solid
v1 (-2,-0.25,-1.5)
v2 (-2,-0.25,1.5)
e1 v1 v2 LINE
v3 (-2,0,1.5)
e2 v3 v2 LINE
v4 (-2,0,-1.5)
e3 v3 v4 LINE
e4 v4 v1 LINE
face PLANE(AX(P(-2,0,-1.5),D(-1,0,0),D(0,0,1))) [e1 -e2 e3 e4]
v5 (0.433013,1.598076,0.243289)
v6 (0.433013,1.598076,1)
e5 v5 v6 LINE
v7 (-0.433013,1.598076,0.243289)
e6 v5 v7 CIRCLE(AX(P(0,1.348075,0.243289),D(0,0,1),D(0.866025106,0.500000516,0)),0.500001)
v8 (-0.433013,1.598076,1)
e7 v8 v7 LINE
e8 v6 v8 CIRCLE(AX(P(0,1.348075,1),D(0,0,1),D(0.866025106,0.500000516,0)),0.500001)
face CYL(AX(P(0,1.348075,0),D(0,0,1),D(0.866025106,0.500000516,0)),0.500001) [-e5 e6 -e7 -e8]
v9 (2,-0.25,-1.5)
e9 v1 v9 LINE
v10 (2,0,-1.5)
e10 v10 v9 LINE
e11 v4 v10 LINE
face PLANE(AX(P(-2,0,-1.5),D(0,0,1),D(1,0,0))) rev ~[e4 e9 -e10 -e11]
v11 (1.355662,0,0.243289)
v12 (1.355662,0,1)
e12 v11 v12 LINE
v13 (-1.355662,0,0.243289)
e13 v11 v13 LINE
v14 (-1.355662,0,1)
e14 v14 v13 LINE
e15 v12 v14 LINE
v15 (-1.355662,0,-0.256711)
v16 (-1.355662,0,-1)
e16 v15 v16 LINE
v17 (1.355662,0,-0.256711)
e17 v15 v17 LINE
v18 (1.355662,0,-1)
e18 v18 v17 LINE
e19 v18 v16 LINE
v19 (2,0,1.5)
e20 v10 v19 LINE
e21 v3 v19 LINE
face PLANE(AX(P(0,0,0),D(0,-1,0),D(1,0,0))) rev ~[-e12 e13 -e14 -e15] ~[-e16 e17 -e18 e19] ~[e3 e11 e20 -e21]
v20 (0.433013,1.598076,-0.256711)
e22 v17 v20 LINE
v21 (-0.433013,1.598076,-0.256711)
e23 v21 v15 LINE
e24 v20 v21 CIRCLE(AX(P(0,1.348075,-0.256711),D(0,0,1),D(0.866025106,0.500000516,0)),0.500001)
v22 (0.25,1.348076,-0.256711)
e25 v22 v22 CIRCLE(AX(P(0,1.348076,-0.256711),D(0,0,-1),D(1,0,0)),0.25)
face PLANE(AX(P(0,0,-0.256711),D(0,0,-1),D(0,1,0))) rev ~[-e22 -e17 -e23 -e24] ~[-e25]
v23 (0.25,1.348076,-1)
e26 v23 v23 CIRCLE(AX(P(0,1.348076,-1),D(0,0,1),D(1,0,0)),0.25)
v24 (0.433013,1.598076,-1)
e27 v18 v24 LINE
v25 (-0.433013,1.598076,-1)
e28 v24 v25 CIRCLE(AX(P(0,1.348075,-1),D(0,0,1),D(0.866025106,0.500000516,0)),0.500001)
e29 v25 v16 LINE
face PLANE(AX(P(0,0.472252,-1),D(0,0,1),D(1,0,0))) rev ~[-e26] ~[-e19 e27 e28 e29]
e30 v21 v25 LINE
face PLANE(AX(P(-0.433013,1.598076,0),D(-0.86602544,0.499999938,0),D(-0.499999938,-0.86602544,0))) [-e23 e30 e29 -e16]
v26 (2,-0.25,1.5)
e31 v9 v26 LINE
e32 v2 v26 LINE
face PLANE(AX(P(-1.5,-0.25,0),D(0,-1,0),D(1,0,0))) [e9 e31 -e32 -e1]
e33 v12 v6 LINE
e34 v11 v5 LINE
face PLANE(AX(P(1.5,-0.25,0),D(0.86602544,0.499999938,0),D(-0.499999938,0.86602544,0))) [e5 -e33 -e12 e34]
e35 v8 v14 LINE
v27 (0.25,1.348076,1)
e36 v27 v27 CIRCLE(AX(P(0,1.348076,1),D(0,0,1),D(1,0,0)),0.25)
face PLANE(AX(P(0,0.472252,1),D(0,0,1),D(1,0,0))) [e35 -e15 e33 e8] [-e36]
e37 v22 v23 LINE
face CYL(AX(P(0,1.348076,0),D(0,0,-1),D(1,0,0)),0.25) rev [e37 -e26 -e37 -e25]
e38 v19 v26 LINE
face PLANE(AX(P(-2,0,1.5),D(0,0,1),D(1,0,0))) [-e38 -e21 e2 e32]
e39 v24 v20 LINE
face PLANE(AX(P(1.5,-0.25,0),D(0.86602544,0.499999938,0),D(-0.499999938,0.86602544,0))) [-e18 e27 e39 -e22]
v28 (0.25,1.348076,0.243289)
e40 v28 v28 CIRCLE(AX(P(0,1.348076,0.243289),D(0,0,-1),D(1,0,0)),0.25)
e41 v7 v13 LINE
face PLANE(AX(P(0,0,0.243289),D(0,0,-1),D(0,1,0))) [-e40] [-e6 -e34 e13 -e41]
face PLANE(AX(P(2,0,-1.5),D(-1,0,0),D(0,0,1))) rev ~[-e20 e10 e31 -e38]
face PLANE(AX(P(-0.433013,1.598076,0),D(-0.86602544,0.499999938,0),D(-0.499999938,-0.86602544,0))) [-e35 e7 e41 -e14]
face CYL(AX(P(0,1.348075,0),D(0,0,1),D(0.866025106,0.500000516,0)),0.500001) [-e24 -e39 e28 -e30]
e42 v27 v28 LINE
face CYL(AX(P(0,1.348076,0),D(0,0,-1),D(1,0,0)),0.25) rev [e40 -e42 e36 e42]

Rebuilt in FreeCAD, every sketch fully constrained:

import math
import FreeCAD as App
import Part
import Sketcher
Q = App.Units.Quantity

doc = App.newDocument("Part")
body = doc.addObject("PartDesign::Body", "Body")

# Sketch on XZ plane
sketch1 = body.newObject("Sketcher::SketchObject", "Sketch")
sketch1.AttachmentSupport = (doc.getObject("XZ_Plane"), [""])
sketch1.MapMode = "FlatFace"
sketch1.addGeometry(Part.LineSegment(App.Vector(-2, 1.5, 0), App.Vector(-2, -1.5, 0)), False)
sketch1.addGeometry(Part.LineSegment(App.Vector(-2, -1.5, 0), App.Vector(2, -1.5, 0)), False)
sketch1.addGeometry(Part.LineSegment(App.Vector(2, -1.5, 0), App.Vector(2, 1.5, 0)), False)
sketch1.addGeometry(Part.LineSegment(App.Vector(2, 1.5, 0), App.Vector(-2, 1.5, 0)), False)
sketch1.addConstraint(Sketcher.Constraint("Coincident", 0, 2, 1, 1))
sketch1.addConstraint(Sketcher.Constraint("Coincident", 1, 2, 2, 1))
sketch1.addConstraint(Sketcher.Constraint("Coincident", 2, 2, 3, 1))
sketch1.addConstraint(Sketcher.Constraint("Coincident", 3, 2, 0, 1))
sketch1.addConstraint(Sketcher.Constraint("Vertical", 0))
sketch1.addConstraint(Sketcher.Constraint("Horizontal", 1))
sketch1.addConstraint(Sketcher.Constraint("Vertical", 2))
sketch1.addConstraint(Sketcher.Constraint("Horizontal", 3))
sketch1.addConstraint(Sketcher.Constraint("Symmetric", 0, 2, 2, 2, -1, 1))
sketch1.addConstraint(Sketcher.Constraint("DistanceX", 1, 1, 1, 2, Q("4 mm")))
sketch1.addConstraint(Sketcher.Constraint("DistanceY", 0, 2, 0, 1, Q("3 mm")))
pad1 = body.newObject("PartDesign::Pad", "Pad")
pad1.Profile = sketch1
pad1.Length = 0.25

# Sketch on XY plane
sketch2 = body.newObject("Sketcher::SketchObject", "Sketch001")
sketch2.AttachmentSupport = (doc.getObject("XY_Plane"), [""])
sketch2.MapMode = "FlatFace"
sketch2.addGeometry(Part.LineSegment(App.Vector(-1.5, -0.25, 0), App.Vector(1.5, -0.25, 0)), False)
sketch2.addGeometry(Part.LineSegment(App.Vector(1.5, -0.25, 0), App.Vector(0.43, 1.6, 0)), False)
sketch2.addGeometry(Part.ArcOfCircle(Part.Circle(App.Vector(0, 1.35, 0), App.Vector(0, 0, 1), 0.5), math.radians(30), math.radians(150)), False)
sketch2.addGeometry(Part.LineSegment(App.Vector(-0.43, 1.6, 0), App.Vector(-1.5, -0.25, 0)), False)
sketch2.addGeometry(Part.Circle(App.Vector(0, 1.35, 0), App.Vector(0, 0, 1), 0.25), False)
sketch2.addConstraint(Sketcher.Constraint("Coincident", 0, 2, 1, 1))
sketch2.addConstraint(Sketcher.Constraint("Tangent", 1, 2, 2, 1))
sketch2.addConstraint(Sketcher.Constraint("Tangent", 2, 2, 3, 1))
sketch2.addConstraint(Sketcher.Constraint("Coincident", 3, 2, 0, 1))
sketch2.addConstraint(Sketcher.Constraint("Horizontal", 0))
sketch2.addConstraint(Sketcher.Constraint("Coincident", 4, 3, 2, 3))
sketch2.addConstraint(Sketcher.Constraint("Symmetric", 1, 2, 2, 2, -2))
sketch2.addConstraint(Sketcher.Constraint("Diameter", 4, Q("0.5 mm")))
sketch2.addConstraint(Sketcher.Constraint("Radius", 2, Q("0.500001 mm")))
sketch2.addConstraint(Sketcher.Constraint("DistanceX", 0, 1, 0, 2, Q("3 mm")))
sketch2.addConstraint(Sketcher.Constraint("Angle", 1, Q("119.999996 deg")))
sketch2.addConstraint(Sketcher.Constraint("DistanceY", 0, 2, -1, 1, Q("0.25 mm")))
pad2 = body.newObject("PartDesign::Pad", "Pad001")
pad2.Profile = sketch2
pad2.Length = 2
pad2.Midplane = True

# Sketch on YZ plane
sketch3 = body.newObject("Sketcher::SketchObject", "Sketch002")
sketch3.AttachmentSupport = (doc.getObject("YZ_Plane"), [""])
sketch3.MapMode = "FlatFace"
sketch3.addGeometry(Part.LineSegment(App.Vector(0, 0.2, 0), App.Vector(0, -0.3, 0)), False)
sketch3.addGeometry(Part.LineSegment(App.Vector(0, -0.3, 0), App.Vector(2.1, -0.3, 0)), False)
sketch3.addGeometry(Part.LineSegment(App.Vector(2.1, -0.3, 0), App.Vector(2.1, 0.2, 0)), False)
sketch3.addGeometry(Part.LineSegment(App.Vector(2.1, 0.2, 0), App.Vector(0, 0.2, 0)), False)
sketch3.addConstraint(Sketcher.Constraint("Coincident", 0, 2, 1, 1))
sketch3.addConstraint(Sketcher.Constraint("Coincident", 1, 2, 2, 1))
sketch3.addConstraint(Sketcher.Constraint("Coincident", 2, 2, 3, 1))
sketch3.addConstraint(Sketcher.Constraint("Coincident", 3, 2, 0, 1))
sketch3.addConstraint(Sketcher.Constraint("Vertical", 0))
sketch3.addConstraint(Sketcher.Constraint("Horizontal", 1))
sketch3.addConstraint(Sketcher.Constraint("Vertical", 2))
sketch3.addConstraint(Sketcher.Constraint("Horizontal", 3))
sketch3.addConstraint(Sketcher.Constraint("PointOnObject", 0, 2, -2))
sketch3.addConstraint(Sketcher.Constraint("DistanceY", 0, 2, 0, 1, Q("0.5 mm")))
sketch3.addConstraint(Sketcher.Constraint("DistanceX", 1, 1, 1, 2, Q("2.05637 mm")))
sketch3.addConstraint(Sketcher.Constraint("DistanceY", 0, 2, -1, 1, Q("0.256711 mm")))
pocket1 = body.newObject("PartDesign::Pocket", "Pocket")
pocket1.Profile = sketch3
pocket1.Length = 25
pocket1.Midplane = True

doc.recompute()
